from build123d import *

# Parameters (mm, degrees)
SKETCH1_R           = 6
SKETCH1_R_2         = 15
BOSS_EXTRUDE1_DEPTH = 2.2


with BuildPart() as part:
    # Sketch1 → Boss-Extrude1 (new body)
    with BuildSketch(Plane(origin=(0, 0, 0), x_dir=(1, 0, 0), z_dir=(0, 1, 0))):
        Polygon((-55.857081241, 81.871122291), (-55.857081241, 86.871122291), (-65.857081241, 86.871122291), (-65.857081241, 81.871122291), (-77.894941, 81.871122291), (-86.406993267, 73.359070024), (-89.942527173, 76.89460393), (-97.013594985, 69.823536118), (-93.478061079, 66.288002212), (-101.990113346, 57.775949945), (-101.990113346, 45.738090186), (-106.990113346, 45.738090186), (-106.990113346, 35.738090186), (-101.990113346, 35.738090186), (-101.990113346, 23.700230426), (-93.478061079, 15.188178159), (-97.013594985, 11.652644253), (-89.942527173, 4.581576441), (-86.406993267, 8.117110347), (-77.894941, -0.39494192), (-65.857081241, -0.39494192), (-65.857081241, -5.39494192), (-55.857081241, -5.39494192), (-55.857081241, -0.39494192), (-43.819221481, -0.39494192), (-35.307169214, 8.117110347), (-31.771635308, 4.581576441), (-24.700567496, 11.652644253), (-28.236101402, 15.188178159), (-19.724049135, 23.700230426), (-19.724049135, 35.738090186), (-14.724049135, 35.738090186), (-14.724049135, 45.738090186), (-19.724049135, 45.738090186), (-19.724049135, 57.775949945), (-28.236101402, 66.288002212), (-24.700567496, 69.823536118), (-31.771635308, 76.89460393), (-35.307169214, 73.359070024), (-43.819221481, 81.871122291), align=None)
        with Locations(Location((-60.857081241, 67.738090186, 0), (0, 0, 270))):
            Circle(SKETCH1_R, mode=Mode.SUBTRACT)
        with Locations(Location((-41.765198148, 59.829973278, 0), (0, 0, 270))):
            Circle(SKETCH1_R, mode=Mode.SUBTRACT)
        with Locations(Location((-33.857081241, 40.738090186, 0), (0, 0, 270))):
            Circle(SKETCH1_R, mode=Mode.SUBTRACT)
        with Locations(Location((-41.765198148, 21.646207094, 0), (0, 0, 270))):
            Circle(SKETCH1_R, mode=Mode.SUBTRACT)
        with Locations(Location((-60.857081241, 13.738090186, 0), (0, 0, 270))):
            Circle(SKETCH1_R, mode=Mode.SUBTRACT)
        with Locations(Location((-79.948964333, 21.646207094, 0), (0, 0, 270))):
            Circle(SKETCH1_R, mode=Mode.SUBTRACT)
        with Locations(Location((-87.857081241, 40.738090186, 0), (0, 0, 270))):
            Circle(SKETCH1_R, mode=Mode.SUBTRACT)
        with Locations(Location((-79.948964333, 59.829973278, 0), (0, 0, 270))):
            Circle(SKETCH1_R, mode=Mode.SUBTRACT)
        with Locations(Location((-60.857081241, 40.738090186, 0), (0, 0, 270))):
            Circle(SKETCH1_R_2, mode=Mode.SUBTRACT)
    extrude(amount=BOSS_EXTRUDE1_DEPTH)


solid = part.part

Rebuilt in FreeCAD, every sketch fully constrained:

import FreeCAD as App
import Part
import Sketcher

doc = App.newDocument("Part")
params = doc.addObject("Spreadsheet::Sheet", "Params")
for row, (alias, value) in enumerate([
    ("sketch1_diameter", "12 mm"),
    ("sketch1_diameter2", "30 mm"),
    ("sketch1_width", "10 mm"),
    ("sketch1_width2", "5 mm"),
    ("sketch1_length", "5 mm"),
    ("pad1_length", "2.2 mm"),
], start=1):
    params.set(f"A{row}", alias)
    params.set(f"B{row}", "=" + value)
    params.setAlias(f"B{row}", alias)

body = doc.addObject("PartDesign::Body", "Body")

# Sketch on XZ plane
sketch1 = body.newObject("Sketcher::SketchObject", "Sketch")
sketch1.AttachmentSupport = (doc.getObject("XZ_Plane"), [""])
sketch1.MapMode = "FlatFace"
sketch1.addGeometry([
    Part.LineSegment(App.Vector(-56, -82, 0), App.Vector(-56, -87, 0)),  # 0
    Part.LineSegment(App.Vector(-56, -87, 0), App.Vector(-66, -87, 0)),  # 1
    Part.LineSegment(App.Vector(-66, -87, 0), App.Vector(-66, -82, 0)),  # 2
    Part.LineSegment(App.Vector(-66, -82, 0), App.Vector(-78, -82, 0)),  # 3
    Part.LineSegment(App.Vector(-78, -82, 0), App.Vector(-86, -73, 0)),  # 4
    Part.LineSegment(App.Vector(-86, -73, 0), App.Vector(-90, -77, 0)),  # 5
    Part.LineSegment(App.Vector(-90, -77, 0), App.Vector(-97, -70, 0)),  # 6
    Part.LineSegment(App.Vector(-97, -70, 0), App.Vector(-93, -66, 0)),  # 7
    Part.LineSegment(App.Vector(-93, -66, 0), App.Vector(-102, -58, 0)),  # 8
    Part.LineSegment(App.Vector(-102, -58, 0), App.Vector(-102, -46, 0)),  # 9
    Part.LineSegment(App.Vector(-102, -46, 0), App.Vector(-107, -46, 0)),  # 10
    Part.LineSegment(App.Vector(-107, -46, 0), App.Vector(-107, -36, 0)),  # 11
    Part.LineSegment(App.Vector(-107, -36, 0), App.Vector(-102, -36, 0)),  # 12
    Part.LineSegment(App.Vector(-102, -36, 0), App.Vector(-102, -24, 0)),  # 13
    Part.LineSegment(App.Vector(-102, -24, 0), App.Vector(-93, -15, 0)),  # 14
    Part.LineSegment(App.Vector(-93, -15, 0), App.Vector(-97, -12, 0)),  # 15
    Part.LineSegment(App.Vector(-97, -12, 0), App.Vector(-90, -5, 0)),  # 16
    Part.LineSegment(App.Vector(-90, -5, 0), App.Vector(-86, -8, 0)),  # 17
    Part.LineSegment(App.Vector(-86, -8, 0), App.Vector(-78, 0, 0)),  # 18
    Part.LineSegment(App.Vector(-78, 0, 0), App.Vector(-66, 0, 0)),  # 19
    Part.LineSegment(App.Vector(-66, 0, 0), App.Vector(-66, 5, 0)),  # 20
    Part.LineSegment(App.Vector(-66, 5, 0), App.Vector(-56, 5, 0)),  # 21
    Part.LineSegment(App.Vector(-56, 5, 0), App.Vector(-56, 0, 0)),  # 22
    Part.LineSegment(App.Vector(-56, 0, 0), App.Vector(-44, 0, 0)),  # 23
    Part.LineSegment(App.Vector(-44, 0, 0), App.Vector(-35, -8, 0)),  # 24
    Part.LineSegment(App.Vector(-35, -8, 0), App.Vector(-32, -5, 0)),  # 25
    Part.LineSegment(App.Vector(-32, -5, 0), App.Vector(-25, -12, 0)),  # 26
    Part.LineSegment(App.Vector(-25, -12, 0), App.Vector(-28, -15, 0)),  # 27
    Part.LineSegment(App.Vector(-28, -15, 0), App.Vector(-20, -24, 0)),  # 28
    Part.LineSegment(App.Vector(-20, -24, 0), App.Vector(-20, -36, 0)),  # 29
    Part.LineSegment(App.Vector(-20, -36, 0), App.Vector(-15, -36, 0)),  # 30
    Part.LineSegment(App.Vector(-15, -36, 0), App.Vector(-15, -46, 0)),  # 31
    Part.LineSegment(App.Vector(-15, -46, 0), App.Vector(-20, -46, 0)),  # 32
    Part.LineSegment(App.Vector(-20, -46, 0), App.Vector(-20, -58, 0)),  # 33
    Part.LineSegment(App.Vector(-20, -58, 0), App.Vector(-28, -66, 0)),  # 34
    Part.LineSegment(App.Vector(-28, -66, 0), App.Vector(-25, -70, 0)),  # 35
    Part.LineSegment(App.Vector(-25, -70, 0), App.Vector(-32, -77, 0)),  # 36
    Part.LineSegment(App.Vector(-32, -77, 0), App.Vector(-35, -73, 0)),  # 37
    Part.LineSegment(App.Vector(-35, -73, 0), App.Vector(-44, -82, 0)),  # 38
    Part.LineSegment(App.Vector(-44, -82, 0), App.Vector(-56, -82, 0)),  # 39
    Part.Circle(App.Vector(-80, -22, 0), App.Vector(0, 0, 1), 6),  # 40
    Part.Circle(App.Vector(-61, -14, 0), App.Vector(0, 0, 1), 6),  # 41
    Part.Circle(App.Vector(-42, -22, 0), App.Vector(0, 0, 1), 6),  # 42
    Part.Circle(App.Vector(-88, -41, 0), App.Vector(0, 0, 1), 6),  # 43
    Part.Circle(App.Vector(-80, -60, 0), App.Vector(0, 0, 1), 6),  # 44
    Part.Circle(App.Vector(-61, -41, 0), App.Vector(0, 0, 1), 15),  # 45
    Part.Circle(App.Vector(-34, -41, 0), App.Vector(0, 0, 1), 6),  # 46
    Part.Circle(App.Vector(-61, -68, 0), App.Vector(0, 0, 1), 6),  # 47
    Part.Circle(App.Vector(-42, -60, 0), App.Vector(0, 0, 1), 6),  # 48
], False)
sketch1.addConstraint([
    Sketcher.Constraint("Coincident", 0, 2, 1, 1),
    Sketcher.Constraint("Coincident", 1, 2, 2, 1),
    Sketcher.Constraint("Coincident", 2, 2, 3, 1),
    Sketcher.Constraint("Coincident", 3, 2, 4, 1),
    Sketcher.Constraint("Coincident", 4, 2, 5, 1),
    Sketcher.Constraint("Coincident", 5, 2, 6, 1),
    Sketcher.Constraint("Coincident", 6, 2, 7, 1),
    Sketcher.Constraint("Coincident", 7, 2, 8, 1),
    Sketcher.Constraint("Coincident", 8, 2, 9, 1),
    Sketcher.Constraint("Coincident", 9, 2, 10, 1),
    Sketcher.Constraint("Coincident", 10, 2, 11, 1),
    Sketcher.Constraint("Coincident", 11, 2, 12, 1),
    Sketcher.Constraint("Coincident", 12, 2, 13, 1),
    Sketcher.Constraint("Coincident", 13, 2, 14, 1),
    Sketcher.Constraint("Coincident", 14, 2, 15, 1),
    Sketcher.Constraint("Coincident", 15, 2, 16, 1),
    Sketcher.Constraint("Coincident", 16, 2, 17, 1),
    Sketcher.Constraint("Coincident", 17, 2, 18, 1),
    Sketcher.Constraint("Coincident", 18, 2, 19, 1),
    Sketcher.Constraint("Coincident", 19, 2, 20, 1),
    Sketcher.Constraint("Coincident", 20, 2, 21, 1),
    Sketcher.Constraint("Coincident", 21, 2, 22, 1),
    Sketcher.Constraint("Coincident", 22, 2, 23, 1),
    Sketcher.Constraint("Coincident", 23, 2, 24, 1),
    Sketcher.Constraint("Coincident", 24, 2, 25, 1),
    Sketcher.Constraint("Coincident", 25, 2, 26, 1),
    Sketcher.Constraint("Coincident", 26, 2, 27, 1),
    Sketcher.Constraint("Coincident", 27, 2, 28, 1),
    Sketcher.Constraint("Coincident", 28, 2, 29, 1),
    Sketcher.Constraint("Coincident", 29, 2, 30, 1),
    Sketcher.Constraint("Coincident", 30, 2, 31, 1),
    Sketcher.Constraint("Coincident", 31, 2, 32, 1),
    Sketcher.Constraint("Coincident", 32, 2, 33, 1),
    Sketcher.Constraint("Coincident", 33, 2, 34, 1),
    Sketcher.Constraint("Coincident", 34, 2, 35, 1),
    Sketcher.Constraint("Coincident", 35, 2, 36, 1),
    Sketcher.Constraint("Coincident", 36, 2, 37, 1),
    Sketcher.Constraint("Coincident", 37, 2, 38, 1),
    Sketcher.Constraint("Coincident", 38, 2, 39, 1),
    Sketcher.Constraint("Coincident", 39, 2, 0, 1),
    Sketcher.Constraint("Vertical", 0),
    Sketcher.Constraint("Horizontal", 1),
    Sketcher.Constraint("Vertical", 2),
    Sketcher.Constraint("Horizontal", 3),
    Sketcher.Constraint("Vertical", 9),
    Sketcher.Constraint("Horizontal", 10),
    Sketcher.Constraint("Vertical", 11),
    Sketcher.Constraint("Horizontal", 12),
    Sketcher.Constraint("Vertical", 13),
    Sketcher.Constraint("Horizontal", 19),
    Sketcher.Constraint("Vertical", 20),
    Sketcher.Constraint("Horizontal", 21),
    Sketcher.Constraint("Vertical", 22),
    Sketcher.Constraint("Horizontal", 23),
    Sketcher.Constraint("Vertical", 29),
    Sketcher.Constraint("Horizontal", 30),
    Sketcher.Constraint("Vertical", 31),
    Sketcher.Constraint("Horizontal", 32),
    Sketcher.Constraint("Vertical", 33),
    Sketcher.Constraint("Horizontal", 39),
    Sketcher.Constraint("Equal", 40, 41),
    Sketcher.Constraint("Equal", 41, 42),
    Sketcher.Constraint("Equal", 42, 43),
    Sketcher.Constraint("Equal", 43, 44),
    Sketcher.Constraint("Equal", 44, 46),
    Sketcher.Constraint("Equal", 46, 47),
    Sketcher.Constraint("Equal", 47, 48),
    Sketcher.Constraint("Perpendicular", 4, 5),
    Sketcher.Constraint("Perpendicular", 5, 6),
    Sketcher.Constraint("Perpendicular", 6, 7),
    Sketcher.Constraint("Perpendicular", 7, 8),
    Sketcher.Constraint("Perpendicular", 8, 14),
    Sketcher.Constraint("Perpendicular", 14, 15),
    Sketcher.Constraint("Perpendicular", 15, 16),
    Sketcher.Constraint("Perpendicular", 16, 17),
    Sketcher.Constraint("Perpendicular", 17, 18),
    Sketcher.Constraint("Perpendicular", 18, 24),
    Sketcher.Constraint("Perpendicular", 24, 25),
    Sketcher.Constraint("Perpendicular", 25, 26),
    Sketcher.Constraint("Perpendicular", 26, 27),
    Sketcher.Constraint("Perpendicular", 27, 28),
    Sketcher.Constraint("Perpendicular", 28, 34),
    Sketcher.Constraint("Perpendicular", 34, 35),
    Sketcher.Constraint("Perpendicular", 35, 36),
    Sketcher.Constraint("Perpendicular", 36, 37),
    Sketcher.Constraint("Perpendicular", 37, 38),
    Sketcher.Constraint("Horizontal", 40, 3, 42, 3),
    Sketcher.Constraint("Horizontal", 43, 3, 45, 3),
    Sketcher.Constraint("Horizontal", 45, 3, 46, 3),
    Sketcher.Constraint("Horizontal", 44, 3, 48, 3),
    Sketcher.Constraint("Horizontal", 19, 2, 22, 2),
    Sketcher.Constraint("Horizontal", 17, 2, 24, 2),
    Sketcher.Constraint("Horizontal", 16, 2, 25, 2),
    Sketcher.Constraint("Horizontal", 15, 2, 26, 2),
    Sketcher.Constraint("Horizontal", 14, 2, 27, 2),
    Sketcher.Constraint("Horizontal", 13, 2, 28, 2),
    Sketcher.Constraint("Horizontal", 12, 2, 29, 2),
    Sketcher.Constraint("Horizontal", 10, 2, 31, 2),
    Sketcher.Constraint("Horizontal", 8, 2, 33, 2),
    Sketcher.Constraint("Horizontal", 7, 2, 34, 2),
    Sketcher.Constraint("Horizontal", 6, 2, 35, 2),
    Sketcher.Constraint("Horizontal", 5, 2, 36, 2),
    Sketcher.Constraint("Horizontal", 4, 2, 37, 2),
    Sketcher.Constraint("Horizontal", 3, 2, 38, 2),
    Sketcher.Constraint("Vertical", 40, 3, 44, 3),
    Sketcher.Constraint("Vertical", 41, 3, 45, 3),
    Sketcher.Constraint("Vertical", 45, 3, 47, 3),
    Sketcher.Constraint("Vertical", 42, 3, 48, 3),
    Sketcher.Constraint("Vertical", 9, 2, 12, 2),
    Sketcher.Constraint("Vertical", 7, 2, 14, 2),
    Sketcher.Constraint("Vertical", 6, 2, 15, 2),
    Sketcher.Constraint("Vertical", 5, 2, 16, 2),
    Sketcher.Constraint("Vertical", 4, 2, 17, 2),
    Sketcher.Constraint("Vertical", 3, 2, 18, 2),
    Sketcher.Constraint("Vertical", 2, 2, 19, 2),
    Sketcher.Constraint("Vertical", 0, 2, 21, 2),
    Sketcher.Constraint("Vertical", 29, 2, 32, 2),
    Sketcher.Constraint("Vertical", 27, 2, 34, 2),
    Sketcher.Constraint("Equal", 19, 23),
    Sketcher.Constraint("Equal", 12, 30),
    Sketcher.Constraint("Equal", 32, 0),
    Sketcher.Constraint("Equal", 39, 9),
    Sketcher.Constraint("Equal", 21, 11),
    Sketcher.Constraint("Equal", 9, 13),
    Sketcher.Constraint("Equal", 2, 20),
    Sketcher.Constraint("Equal", 5, 7),
    Sketcher.Constraint("Equal", 4, 8),
    Sketcher.Constraint("Diameter", 40, 12.0),
    Sketcher.Constraint("Diameter", 45, 30.0),
    Sketcher.Constraint("DistanceX", 1, 2, 1, 1, 10.0),
    Sketcher.Constraint("DistanceX", 10, 2, 10, 1, 5.0),
    Sketcher.Constraint("Distance", 5, 5.0),
    Sketcher.Constraint("Distance", 6, 10.0),
    Sketcher.Constraint("DistanceX", 43, 3, 41, 3, 27.0),
    Sketcher.Constraint("DistanceY", 43, 3, 41, 3, 27.0),
    Sketcher.Constraint("DistanceX", 45, 3, 46, 3, 27.0),
    Sketcher.Constraint("DistanceY", 47, 3, 45, 3, 27.0),
    Sketcher.Constraint("DistanceX", 47, 3, 0, 2, 5.0),
    Sketcher.Constraint("DistanceY", 9, 2, 43, 3, 5.0),
    Sketcher.Constraint("DistanceX", 3, 2, 3, 1, 12.03786),
    Sketcher.Constraint("DistanceX", 42, 3, -1, 1, 41.765198),
    Sketcher.Constraint("DistanceX", 27, 2, -1, 1, 28.236101),
    Sketcher.Constraint("Distance", 4, 12.03786),
    Sketcher.Constraint("DistanceY", 41, 3, -1, 1, 13.73809),
    Sketcher.Constraint("DistanceY", 0, 2, 48, 3, 27.041149),
    Sketcher.Constraint("DistanceX", 4, 2, 44, 3, 6.458029),
    Sketcher.Constraint("DistanceY", 40, 3, 14, 2, 6.458029),
])
sketch1.setExpression("Constraints[127]", "Params.sketch1_diameter")
sketch1.setExpression("Constraints[128]", "Params.sketch1_diameter2")
sketch1.setExpression("Constraints[129]", "Params.sketch1_width")
sketch1.setExpression("Constraints[130]", "Params.sketch1_width2")
sketch1.setExpression("Constraints[131]", "Params.sketch1_length")
pad1 = body.newObject("PartDesign::Pad", "Pad")
pad1.Profile = sketch1
pad1.setExpression("Length", "Params.pad1_length")
pad1.Reversed = True

doc.recompute()
